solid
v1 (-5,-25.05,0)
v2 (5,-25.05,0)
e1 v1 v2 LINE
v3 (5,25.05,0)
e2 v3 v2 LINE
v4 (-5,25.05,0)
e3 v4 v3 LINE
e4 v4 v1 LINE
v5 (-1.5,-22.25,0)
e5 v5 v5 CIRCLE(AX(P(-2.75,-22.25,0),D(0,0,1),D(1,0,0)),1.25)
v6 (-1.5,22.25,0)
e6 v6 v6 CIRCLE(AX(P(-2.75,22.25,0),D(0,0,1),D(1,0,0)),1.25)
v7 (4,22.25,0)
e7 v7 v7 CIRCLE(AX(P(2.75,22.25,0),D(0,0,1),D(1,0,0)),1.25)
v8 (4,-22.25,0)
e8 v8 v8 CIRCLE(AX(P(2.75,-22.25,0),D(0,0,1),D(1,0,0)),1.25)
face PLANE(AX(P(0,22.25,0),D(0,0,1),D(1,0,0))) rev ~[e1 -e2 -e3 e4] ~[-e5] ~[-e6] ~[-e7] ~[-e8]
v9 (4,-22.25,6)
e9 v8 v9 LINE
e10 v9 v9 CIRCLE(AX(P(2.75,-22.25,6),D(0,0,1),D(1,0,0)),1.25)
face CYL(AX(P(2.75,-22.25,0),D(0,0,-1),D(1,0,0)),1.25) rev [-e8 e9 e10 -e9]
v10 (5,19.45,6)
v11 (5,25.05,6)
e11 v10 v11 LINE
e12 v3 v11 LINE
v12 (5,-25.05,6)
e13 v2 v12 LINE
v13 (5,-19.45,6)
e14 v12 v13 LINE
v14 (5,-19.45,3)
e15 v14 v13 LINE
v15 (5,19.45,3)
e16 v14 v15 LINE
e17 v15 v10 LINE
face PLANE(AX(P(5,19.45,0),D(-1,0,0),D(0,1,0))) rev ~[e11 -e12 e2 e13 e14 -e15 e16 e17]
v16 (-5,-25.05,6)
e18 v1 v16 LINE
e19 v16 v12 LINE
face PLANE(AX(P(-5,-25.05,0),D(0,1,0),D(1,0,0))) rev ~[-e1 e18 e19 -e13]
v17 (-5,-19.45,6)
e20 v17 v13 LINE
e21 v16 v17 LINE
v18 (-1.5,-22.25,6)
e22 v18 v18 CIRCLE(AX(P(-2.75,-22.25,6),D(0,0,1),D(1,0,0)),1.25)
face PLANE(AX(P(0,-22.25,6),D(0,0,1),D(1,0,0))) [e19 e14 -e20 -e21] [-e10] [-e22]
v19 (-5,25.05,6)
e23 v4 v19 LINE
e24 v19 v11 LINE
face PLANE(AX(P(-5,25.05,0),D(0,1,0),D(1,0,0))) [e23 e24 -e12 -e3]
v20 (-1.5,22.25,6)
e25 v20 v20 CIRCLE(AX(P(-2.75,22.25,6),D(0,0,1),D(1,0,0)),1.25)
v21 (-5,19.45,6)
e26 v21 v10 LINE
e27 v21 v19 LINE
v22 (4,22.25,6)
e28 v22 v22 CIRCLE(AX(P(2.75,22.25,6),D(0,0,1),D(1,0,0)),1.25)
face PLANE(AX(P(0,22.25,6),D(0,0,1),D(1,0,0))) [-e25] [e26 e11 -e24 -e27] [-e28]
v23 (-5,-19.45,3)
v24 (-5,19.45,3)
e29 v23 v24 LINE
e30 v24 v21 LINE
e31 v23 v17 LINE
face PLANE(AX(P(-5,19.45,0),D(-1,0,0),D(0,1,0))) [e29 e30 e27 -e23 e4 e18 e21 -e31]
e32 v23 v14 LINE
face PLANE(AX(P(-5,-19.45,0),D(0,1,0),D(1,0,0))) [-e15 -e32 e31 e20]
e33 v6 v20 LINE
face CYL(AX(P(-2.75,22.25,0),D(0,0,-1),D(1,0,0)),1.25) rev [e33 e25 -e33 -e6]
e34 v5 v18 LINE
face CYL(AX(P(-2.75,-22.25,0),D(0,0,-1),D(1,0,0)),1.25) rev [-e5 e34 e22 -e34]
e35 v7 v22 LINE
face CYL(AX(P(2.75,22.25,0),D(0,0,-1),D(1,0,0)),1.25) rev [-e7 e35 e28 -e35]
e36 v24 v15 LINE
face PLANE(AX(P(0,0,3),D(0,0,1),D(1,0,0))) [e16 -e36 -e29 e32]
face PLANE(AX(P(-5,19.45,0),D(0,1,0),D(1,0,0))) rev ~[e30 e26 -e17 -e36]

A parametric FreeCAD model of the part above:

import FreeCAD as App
import Part
import Sketcher
from FreeCAD import Vector
Q = App.Units.Quantity


def add_polygon(sketch, points):
    """Adds a closed chain of lines whose ends are joined by coincident constraints."""
    first, n = sketch.GeometryCount, len(points)
    for a, b in zip(points, points[1:] + points[:1]):
        sketch.addGeometry(Part.LineSegment(App.Vector(*a, 0), App.Vector(*b, 0)), False)
    for i in range(n):
        sketch.addConstraint(Sketcher.Constraint("Coincident", first + i, 2, first + (i + 1) % n, 1))

doc = App.newDocument("Part")
params = doc.addObject("Spreadsheet::Sheet", "Params")
for row, (alias, value) in enumerate([
    ("sketch1_width", "10 mm"),
    ("sketch1_height", "38.9 mm"),
    ("pad1_length", "3 mm"),
    ("sketch2_diameter", "2.5 mm"),
    ("sketch2_width", "10 mm"),
    ("sketch2_height", "5.6 mm"),
    ("pad2_length", "6 mm"),
], start=1):
    params.set(f"A{row}", alias)
    params.set(f"B{row}", "=" + value)
    params.setAlias(f"B{row}", alias)

body = doc.addObject("PartDesign::Body", "Body")

# Sketch on XY plane
sketch1 = body.newObject("Sketcher::SketchObject", "Sketch")
sketch1.AttachmentSupport = (doc.getObject("XY_Plane"), [""])
sketch1.MapMode = "FlatFace"
add_polygon(sketch1, [(-5, 19), (-5, -19), (5, -19), (5, 19)])  # lines 0-3
sketch1.addConstraint([
    Sketcher.Constraint("Vertical", 0),
    Sketcher.Constraint("Horizontal", 1),
    Sketcher.Constraint("Vertical", 2),
    Sketcher.Constraint("Horizontal", 3),
    Sketcher.Constraint("Symmetric", 0, 2, 2, 2, -1, 1),
    Sketcher.Constraint("DistanceX", 1, 1, 1, 2, Q("10 mm")),
    Sketcher.Constraint("DistanceY", 0, 2, 0, 1, Q("38.9 mm")),
])
sketch1.setExpression("Constraints[9]", "Params.sketch1_width")
sketch1.setExpression("Constraints[10]", "Params.sketch1_height")
pad1 = body.newObject("PartDesign::Pad", "Pad")
pad1.Profile = sketch1
pad1.setExpression("Length", "Params.pad1_length")

# Sketch on XY plane
sketch2 = body.newObject("Sketcher::SketchObject", "Sketch001")
sketch2.AttachmentSupport = (doc.getObject("XY_Plane"), [""])
sketch2.MapMode = "FlatFace"
add_polygon(sketch2, [(-5, 25.1), (-5, 19.4), (5, 19.4), (5, 25.1)])  # lines 0-3
sketch2.addGeometry(Part.Circle(Vector(-2.8, 22.2, 0), Vector(0, 0, 1), 1.2), False)  # 4
sketch2.addGeometry(Part.Circle(Vector(2.8, 22.2, 0), Vector(0, 0, 1), 1.2), False)  # 5
add_polygon(sketch2, [(-5, -19.4), (-5, -25.1), (5, -25.1), (5, -19.4)])  # lines 6-9
sketch2.addGeometry(Part.Circle(Vector(-2.8, -22.2, 0), Vector(0, 0, 1), 1.2), False)  # 10
sketch2.addGeometry(Part.Circle(Vector(2.8, -22.2, 0), Vector(0, 0, 1), 1.2), False)  # 11
sketch2.addConstraint([
    Sketcher.Constraint("Vertical", 0),
    Sketcher.Constraint("Horizontal", 1),
    Sketcher.Constraint("Vertical", 2),
    Sketcher.Constraint("Horizontal", 3),
    Sketcher.Constraint("Vertical", 6),
    Sketcher.Constraint("Horizontal", 7),
    Sketcher.Constraint("Vertical", 8),
    Sketcher.Constraint("Horizontal", 9),
    Sketcher.Constraint("Equal", 4, 5),
    Sketcher.Constraint("Equal", 5, 10),
    Sketcher.Constraint("Equal", 10, 11),
    Sketcher.Constraint("Symmetric", 5, 3, 10, 3, -1, 1),
    Sketcher.Constraint("Symmetric", 4, 3, 11, 3, -1, 1),
    Sketcher.Constraint("Symmetric", 2, 2, 6, 2, -1, 1),
    Sketcher.Constraint("Symmetric", 0, 2, 8, 2, -1, 1),
    Sketcher.Constraint("Symmetric", 4, 3, 5, 3, -2),
    Sketcher.Constraint("Vertical", 3, 2, 6, 2),
    Sketcher.Constraint("Diameter", 4, Q("2.5 mm")),
    Sketcher.Constraint("DistanceX", 1, 1, 1, 2, Q("10 mm")),
    Sketcher.Constraint("DistanceY", 0, 2, 0, 1, Q("5.6 mm")),
    Sketcher.Constraint("DistanceX", 4, 3, 5, 3, Q("5.5 mm")),
    Sketcher.Constraint("DistanceY", 10, 3, 4, 3, Q("44.5 mm")),
    Sketcher.Constraint("DistanceY", 0, 2, 4, 3, Q("2.8 mm")),
])
sketch2.setExpression("Constraints[25]", "Params.sketch2_diameter")
sketch2.setExpression("Constraints[26]", "Params.sketch2_width")
sketch2.setExpression("Constraints[27]", "Params.sketch2_height")
pad2 = body.newObject("PartDesign::Pad", "Pad001")
pad2.Profile = sketch2
pad2.setExpression("Length", "Params.pad2_length")

doc.recompute()
